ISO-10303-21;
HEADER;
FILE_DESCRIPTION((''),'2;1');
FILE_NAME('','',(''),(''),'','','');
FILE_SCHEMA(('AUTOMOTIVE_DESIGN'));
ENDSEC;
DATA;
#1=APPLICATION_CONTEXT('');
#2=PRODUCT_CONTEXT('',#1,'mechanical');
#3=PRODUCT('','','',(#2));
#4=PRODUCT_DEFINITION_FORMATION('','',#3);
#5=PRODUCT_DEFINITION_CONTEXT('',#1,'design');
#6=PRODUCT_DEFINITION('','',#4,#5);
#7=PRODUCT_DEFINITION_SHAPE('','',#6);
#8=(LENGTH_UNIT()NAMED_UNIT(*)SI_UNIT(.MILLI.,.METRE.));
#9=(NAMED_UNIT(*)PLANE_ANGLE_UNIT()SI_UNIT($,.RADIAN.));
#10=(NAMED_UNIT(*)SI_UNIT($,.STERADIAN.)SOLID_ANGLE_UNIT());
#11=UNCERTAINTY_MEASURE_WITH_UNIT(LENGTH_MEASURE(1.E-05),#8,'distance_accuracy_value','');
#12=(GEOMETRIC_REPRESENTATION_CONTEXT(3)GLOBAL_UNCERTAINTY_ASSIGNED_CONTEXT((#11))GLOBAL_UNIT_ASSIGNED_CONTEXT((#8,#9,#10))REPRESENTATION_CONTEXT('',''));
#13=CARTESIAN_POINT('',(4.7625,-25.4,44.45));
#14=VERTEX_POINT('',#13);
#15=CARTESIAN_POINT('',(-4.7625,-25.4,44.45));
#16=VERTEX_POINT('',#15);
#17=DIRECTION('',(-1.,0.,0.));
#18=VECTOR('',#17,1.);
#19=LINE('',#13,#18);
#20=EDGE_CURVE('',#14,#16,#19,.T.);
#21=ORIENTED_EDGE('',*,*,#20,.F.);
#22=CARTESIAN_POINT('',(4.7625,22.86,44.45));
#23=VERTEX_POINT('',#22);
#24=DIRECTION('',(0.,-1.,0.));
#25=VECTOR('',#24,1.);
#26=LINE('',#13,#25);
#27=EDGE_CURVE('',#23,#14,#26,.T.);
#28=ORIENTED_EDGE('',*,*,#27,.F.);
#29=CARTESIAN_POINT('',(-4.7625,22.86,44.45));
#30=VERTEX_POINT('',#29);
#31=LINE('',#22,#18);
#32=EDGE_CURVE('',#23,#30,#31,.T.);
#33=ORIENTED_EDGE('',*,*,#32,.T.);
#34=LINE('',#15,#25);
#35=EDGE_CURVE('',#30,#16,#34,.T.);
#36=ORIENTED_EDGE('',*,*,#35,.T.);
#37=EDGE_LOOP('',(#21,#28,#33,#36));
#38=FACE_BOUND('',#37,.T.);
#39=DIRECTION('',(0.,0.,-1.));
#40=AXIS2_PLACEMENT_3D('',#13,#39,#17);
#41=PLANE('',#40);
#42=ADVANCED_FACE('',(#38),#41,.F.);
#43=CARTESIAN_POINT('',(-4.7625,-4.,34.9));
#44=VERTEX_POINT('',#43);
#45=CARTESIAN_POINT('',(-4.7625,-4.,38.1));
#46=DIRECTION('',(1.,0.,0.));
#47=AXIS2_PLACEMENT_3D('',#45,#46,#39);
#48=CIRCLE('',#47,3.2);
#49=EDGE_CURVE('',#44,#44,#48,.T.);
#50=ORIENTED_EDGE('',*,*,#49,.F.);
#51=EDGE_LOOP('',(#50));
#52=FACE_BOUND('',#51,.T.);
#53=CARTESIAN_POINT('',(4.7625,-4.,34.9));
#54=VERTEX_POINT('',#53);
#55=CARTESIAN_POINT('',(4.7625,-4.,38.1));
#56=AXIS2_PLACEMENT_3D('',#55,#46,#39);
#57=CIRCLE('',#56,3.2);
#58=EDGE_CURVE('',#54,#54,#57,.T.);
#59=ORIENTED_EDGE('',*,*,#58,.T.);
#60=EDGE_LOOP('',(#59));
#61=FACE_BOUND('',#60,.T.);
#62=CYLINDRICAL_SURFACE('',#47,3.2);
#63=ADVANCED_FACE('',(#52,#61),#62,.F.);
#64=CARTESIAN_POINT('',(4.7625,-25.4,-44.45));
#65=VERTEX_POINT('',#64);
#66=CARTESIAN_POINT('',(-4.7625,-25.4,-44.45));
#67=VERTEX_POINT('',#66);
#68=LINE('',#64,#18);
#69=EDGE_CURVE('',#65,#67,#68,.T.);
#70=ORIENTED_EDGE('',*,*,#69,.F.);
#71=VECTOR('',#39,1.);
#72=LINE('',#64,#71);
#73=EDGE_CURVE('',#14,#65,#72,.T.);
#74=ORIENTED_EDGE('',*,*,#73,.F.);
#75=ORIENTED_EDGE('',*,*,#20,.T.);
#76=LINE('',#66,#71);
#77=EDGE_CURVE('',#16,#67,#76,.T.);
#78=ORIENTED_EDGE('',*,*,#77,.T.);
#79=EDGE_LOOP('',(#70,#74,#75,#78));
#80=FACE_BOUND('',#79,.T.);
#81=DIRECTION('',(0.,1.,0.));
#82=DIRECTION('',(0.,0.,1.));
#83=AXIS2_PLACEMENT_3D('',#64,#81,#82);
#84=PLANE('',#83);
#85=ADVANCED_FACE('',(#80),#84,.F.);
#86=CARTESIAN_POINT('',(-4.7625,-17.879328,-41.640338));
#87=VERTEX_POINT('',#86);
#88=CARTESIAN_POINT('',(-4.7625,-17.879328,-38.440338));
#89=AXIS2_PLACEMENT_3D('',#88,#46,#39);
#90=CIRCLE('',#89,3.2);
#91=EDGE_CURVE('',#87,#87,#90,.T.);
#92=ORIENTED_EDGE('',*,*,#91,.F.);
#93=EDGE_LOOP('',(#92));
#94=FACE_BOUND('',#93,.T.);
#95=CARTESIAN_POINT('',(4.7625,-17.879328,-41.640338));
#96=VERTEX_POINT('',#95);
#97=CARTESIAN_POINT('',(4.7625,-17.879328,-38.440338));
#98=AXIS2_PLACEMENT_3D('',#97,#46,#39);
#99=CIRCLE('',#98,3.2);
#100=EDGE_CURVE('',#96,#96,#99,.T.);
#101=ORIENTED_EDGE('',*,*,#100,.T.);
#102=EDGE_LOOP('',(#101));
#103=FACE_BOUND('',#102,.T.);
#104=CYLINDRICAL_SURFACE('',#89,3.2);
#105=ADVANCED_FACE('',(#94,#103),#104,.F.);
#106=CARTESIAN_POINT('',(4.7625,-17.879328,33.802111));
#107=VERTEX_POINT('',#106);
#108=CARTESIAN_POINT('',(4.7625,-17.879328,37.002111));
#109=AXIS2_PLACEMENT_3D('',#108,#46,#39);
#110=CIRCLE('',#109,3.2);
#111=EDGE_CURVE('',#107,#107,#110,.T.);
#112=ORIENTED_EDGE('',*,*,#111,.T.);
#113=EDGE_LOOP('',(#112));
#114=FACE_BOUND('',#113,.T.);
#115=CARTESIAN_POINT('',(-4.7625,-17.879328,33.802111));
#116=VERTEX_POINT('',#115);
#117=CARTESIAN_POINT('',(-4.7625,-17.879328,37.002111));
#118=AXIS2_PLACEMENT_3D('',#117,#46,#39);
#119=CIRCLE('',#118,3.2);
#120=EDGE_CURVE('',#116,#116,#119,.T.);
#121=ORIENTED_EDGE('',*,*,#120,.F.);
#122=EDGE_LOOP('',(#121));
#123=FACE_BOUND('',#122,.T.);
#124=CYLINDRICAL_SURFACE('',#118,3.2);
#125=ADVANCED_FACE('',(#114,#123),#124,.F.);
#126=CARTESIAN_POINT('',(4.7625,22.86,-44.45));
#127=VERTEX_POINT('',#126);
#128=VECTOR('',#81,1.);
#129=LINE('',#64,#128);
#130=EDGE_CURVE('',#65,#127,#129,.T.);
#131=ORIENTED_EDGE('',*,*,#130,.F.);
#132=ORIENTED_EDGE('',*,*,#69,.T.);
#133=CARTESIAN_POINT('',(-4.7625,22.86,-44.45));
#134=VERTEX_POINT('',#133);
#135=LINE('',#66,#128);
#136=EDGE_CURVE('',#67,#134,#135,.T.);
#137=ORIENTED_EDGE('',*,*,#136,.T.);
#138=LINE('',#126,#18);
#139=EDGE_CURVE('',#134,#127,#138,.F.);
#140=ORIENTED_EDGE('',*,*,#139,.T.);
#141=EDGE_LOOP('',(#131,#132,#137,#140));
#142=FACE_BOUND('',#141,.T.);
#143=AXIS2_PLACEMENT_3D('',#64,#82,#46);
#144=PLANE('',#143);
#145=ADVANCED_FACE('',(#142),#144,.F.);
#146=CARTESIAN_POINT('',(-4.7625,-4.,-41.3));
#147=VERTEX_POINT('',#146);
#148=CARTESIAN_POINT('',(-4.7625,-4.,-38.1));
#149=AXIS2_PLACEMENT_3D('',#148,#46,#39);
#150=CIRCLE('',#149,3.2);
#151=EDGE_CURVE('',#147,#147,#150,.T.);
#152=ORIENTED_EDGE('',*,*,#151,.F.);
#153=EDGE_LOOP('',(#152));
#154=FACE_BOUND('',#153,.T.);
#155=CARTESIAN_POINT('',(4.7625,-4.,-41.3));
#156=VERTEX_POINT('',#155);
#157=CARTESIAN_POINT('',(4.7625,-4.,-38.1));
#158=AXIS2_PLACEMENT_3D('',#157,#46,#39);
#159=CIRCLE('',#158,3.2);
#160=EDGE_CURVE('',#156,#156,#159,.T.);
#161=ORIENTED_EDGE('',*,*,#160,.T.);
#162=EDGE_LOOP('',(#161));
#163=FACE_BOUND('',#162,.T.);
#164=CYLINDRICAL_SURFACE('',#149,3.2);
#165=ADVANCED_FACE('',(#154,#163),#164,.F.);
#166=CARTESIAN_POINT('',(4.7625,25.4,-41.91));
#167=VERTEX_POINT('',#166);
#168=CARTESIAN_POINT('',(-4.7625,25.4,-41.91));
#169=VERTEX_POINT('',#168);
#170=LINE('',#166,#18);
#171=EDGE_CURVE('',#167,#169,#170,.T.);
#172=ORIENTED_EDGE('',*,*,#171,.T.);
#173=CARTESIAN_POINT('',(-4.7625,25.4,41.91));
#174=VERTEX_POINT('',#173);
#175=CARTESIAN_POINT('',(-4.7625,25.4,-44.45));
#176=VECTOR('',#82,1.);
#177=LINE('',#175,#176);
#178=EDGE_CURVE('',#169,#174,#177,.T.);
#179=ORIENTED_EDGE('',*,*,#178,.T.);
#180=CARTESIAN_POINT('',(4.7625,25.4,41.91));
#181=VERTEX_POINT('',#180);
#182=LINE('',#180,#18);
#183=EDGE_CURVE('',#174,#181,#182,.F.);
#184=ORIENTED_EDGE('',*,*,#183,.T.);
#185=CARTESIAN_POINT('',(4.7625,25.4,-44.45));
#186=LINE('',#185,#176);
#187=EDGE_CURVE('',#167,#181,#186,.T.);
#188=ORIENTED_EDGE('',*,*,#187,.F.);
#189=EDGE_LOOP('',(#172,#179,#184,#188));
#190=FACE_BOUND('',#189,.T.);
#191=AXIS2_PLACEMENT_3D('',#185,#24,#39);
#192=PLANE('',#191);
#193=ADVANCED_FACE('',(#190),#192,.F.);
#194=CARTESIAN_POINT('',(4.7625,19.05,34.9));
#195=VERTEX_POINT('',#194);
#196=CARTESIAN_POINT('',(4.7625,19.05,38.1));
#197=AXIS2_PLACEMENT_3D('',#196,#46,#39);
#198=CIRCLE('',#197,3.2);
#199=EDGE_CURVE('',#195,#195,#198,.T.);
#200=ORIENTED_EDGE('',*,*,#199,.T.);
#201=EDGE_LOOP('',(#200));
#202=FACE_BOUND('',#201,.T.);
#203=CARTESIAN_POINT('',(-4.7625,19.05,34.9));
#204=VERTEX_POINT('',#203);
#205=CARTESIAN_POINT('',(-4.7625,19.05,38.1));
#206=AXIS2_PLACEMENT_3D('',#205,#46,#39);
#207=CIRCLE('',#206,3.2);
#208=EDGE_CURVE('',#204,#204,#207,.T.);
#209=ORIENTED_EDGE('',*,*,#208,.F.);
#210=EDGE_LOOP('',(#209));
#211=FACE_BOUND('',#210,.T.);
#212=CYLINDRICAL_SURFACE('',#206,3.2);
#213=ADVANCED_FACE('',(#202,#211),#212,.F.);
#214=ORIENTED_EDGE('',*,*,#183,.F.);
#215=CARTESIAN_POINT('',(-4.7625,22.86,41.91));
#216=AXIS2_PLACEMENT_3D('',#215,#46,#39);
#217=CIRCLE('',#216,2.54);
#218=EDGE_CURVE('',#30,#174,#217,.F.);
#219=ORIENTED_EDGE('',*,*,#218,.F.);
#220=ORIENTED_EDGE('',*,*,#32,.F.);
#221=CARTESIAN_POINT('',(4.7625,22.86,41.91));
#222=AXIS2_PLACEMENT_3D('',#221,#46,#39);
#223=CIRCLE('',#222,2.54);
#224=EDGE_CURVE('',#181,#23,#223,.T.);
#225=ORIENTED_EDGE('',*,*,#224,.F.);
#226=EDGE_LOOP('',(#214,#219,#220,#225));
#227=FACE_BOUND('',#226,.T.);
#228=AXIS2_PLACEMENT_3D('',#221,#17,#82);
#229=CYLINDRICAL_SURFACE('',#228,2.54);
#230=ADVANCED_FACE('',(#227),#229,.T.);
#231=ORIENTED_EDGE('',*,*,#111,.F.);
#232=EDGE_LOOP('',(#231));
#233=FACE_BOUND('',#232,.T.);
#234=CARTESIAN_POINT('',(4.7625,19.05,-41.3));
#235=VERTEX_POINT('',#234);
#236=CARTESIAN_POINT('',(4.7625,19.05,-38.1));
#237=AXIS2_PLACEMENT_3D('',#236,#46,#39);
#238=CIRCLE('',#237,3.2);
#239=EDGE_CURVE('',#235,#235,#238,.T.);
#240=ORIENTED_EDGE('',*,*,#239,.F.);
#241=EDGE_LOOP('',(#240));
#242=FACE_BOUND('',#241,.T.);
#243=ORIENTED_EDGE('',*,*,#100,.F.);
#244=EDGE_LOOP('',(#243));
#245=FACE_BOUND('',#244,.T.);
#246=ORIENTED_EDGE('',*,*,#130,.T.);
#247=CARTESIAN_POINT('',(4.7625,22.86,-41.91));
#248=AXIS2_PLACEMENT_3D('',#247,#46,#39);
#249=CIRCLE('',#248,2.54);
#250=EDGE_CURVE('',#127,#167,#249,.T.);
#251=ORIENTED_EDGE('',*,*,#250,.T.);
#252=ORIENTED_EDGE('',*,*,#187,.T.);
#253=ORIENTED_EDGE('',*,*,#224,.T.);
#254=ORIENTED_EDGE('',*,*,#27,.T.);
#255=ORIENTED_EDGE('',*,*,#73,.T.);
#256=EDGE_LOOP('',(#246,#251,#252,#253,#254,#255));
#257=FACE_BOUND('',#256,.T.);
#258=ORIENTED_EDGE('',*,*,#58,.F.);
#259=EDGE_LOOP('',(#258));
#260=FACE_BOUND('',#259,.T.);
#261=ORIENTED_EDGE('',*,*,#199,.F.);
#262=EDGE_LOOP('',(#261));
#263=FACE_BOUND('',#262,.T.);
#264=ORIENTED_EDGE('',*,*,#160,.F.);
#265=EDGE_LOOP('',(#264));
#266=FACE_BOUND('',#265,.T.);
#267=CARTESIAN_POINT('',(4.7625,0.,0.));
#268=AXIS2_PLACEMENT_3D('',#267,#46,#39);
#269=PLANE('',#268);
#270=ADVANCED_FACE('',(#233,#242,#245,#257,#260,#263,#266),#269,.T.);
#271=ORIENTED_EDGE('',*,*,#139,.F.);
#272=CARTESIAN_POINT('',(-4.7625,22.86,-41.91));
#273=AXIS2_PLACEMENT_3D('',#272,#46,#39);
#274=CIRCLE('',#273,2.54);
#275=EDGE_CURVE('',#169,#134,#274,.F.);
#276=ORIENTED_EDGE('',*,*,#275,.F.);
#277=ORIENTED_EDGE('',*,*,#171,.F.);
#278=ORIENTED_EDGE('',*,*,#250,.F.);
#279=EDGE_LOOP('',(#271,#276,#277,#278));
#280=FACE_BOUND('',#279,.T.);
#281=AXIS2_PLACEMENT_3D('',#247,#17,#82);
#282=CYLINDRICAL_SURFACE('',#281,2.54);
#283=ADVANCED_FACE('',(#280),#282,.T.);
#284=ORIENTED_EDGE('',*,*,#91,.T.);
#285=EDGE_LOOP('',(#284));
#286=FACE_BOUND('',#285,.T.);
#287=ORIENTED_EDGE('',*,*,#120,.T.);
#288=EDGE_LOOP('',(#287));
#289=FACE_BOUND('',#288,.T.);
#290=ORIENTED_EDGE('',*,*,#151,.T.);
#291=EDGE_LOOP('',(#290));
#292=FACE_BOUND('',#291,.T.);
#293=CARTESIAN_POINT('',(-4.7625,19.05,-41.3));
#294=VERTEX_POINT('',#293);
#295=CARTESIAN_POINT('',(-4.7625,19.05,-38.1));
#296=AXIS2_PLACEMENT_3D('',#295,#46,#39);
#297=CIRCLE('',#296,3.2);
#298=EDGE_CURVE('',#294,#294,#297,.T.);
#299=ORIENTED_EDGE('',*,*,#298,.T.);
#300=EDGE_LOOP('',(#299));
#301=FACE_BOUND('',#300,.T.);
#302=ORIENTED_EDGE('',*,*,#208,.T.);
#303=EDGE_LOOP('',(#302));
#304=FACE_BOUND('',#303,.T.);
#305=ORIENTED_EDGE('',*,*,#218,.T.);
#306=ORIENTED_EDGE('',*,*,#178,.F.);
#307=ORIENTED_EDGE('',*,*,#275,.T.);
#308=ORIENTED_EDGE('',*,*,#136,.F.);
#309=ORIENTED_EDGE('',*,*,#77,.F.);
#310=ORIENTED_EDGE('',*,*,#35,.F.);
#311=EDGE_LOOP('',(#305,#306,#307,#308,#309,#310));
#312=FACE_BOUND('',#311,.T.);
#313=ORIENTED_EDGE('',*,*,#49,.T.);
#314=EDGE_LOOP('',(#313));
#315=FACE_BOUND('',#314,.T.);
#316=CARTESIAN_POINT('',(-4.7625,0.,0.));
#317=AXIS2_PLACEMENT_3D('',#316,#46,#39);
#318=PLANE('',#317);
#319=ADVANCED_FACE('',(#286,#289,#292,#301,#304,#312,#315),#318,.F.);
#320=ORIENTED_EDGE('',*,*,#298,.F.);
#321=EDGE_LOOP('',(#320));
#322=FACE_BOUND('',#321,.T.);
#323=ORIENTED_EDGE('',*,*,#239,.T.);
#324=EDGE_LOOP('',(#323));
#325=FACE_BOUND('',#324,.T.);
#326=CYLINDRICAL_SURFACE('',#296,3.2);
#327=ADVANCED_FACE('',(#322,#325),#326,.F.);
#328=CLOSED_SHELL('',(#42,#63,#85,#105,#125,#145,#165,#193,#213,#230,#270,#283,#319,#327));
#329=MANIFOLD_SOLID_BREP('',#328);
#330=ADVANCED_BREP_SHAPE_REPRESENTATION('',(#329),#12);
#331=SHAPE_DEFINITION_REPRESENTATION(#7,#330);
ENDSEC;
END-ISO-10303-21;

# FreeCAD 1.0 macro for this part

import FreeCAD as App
import Part
import Sketcher
from FreeCAD import Vector
Q = App.Units.Quantity


def edges_at(feature, points):
    """Names of the edges that pass closest to the given points."""
    edges = feature.Shape.Edges
    near = lambda p: min(range(len(edges)), key=lambda i: edges[i].distToShape(Part.Vertex(*p))[0])
    return sorted({f"Edge{near(p) + 1}" for p in points})

doc = App.newDocument("Part")
body = doc.addObject("PartDesign::Body", "Body")

# Sketch on YZ plane
sketch1 = doc.addObject("Sketcher::SketchObject", "Sketch")
body.addObject(sketch1)
sketch1.AttachmentSupport = (doc.YZ_Plane, [""])
sketch1.MapMode = "FlatFace"
sketch1.addGeometry(Part.LineSegment(Vector(25.4, 44.45, 0), Vector(-25.4, 44.45, 0)), False)
sketch1.addGeometry(Part.LineSegment(Vector(-25.4, 44.45, 0), Vector(-25.4, -44.45, 0)), False)
sketch1.addGeometry(Part.LineSegment(Vector(-25.4, -44.45, 0), Vector(25.4, -44.45, 0)), False)
sketch1.addGeometry(Part.LineSegment(Vector(25.4, -44.45, 0), Vector(25.4, 44.45, 0)), False)
sketch1.addConstraint(Sketcher.Constraint("Coincident", 0, 2, 1, 1))
sketch1.addConstraint(Sketcher.Constraint("Coincident", 1, 2, 2, 1))
sketch1.addConstraint(Sketcher.Constraint("Coincident", 2, 2, 3, 1))
sketch1.addConstraint(Sketcher.Constraint("Coincident", 3, 2, 0, 1))
sketch1.addConstraint(Sketcher.Constraint("Horizontal", 0))
sketch1.addConstraint(Sketcher.Constraint("Vertical", 1))
sketch1.addConstraint(Sketcher.Constraint("Horizontal", 2))
sketch1.addConstraint(Sketcher.Constraint("Vertical", 3))
sketch1.addConstraint(Sketcher.Constraint("Symmetric", 0, 2, 2, 2, -1, 1))
sketch1.addConstraint(Sketcher.Constraint("DistanceX", 0, 2, 0, 1, Q("2 in")))
sketch1.addConstraint(Sketcher.Constraint("DistanceY", 1, 2, 1, 1, Q("3.5 in")))
pad1 = doc.addObject("PartDesign::Pad", "Pad")
body.addObject(pad1)
pad1.Profile = sketch1
pad1.Length = Q("0.375 in")
pad1.Midplane = True

# Sketch on YZ plane
sketch2 = doc.addObject("Sketcher::SketchObject", "Sketch001")
body.addObject(sketch2)
sketch2.AttachmentSupport = (doc.YZ_Plane, [""])
sketch2.MapMode = "FlatFace"
sketch2.AttachmentOffset = App.Placement(Vector(0, 0, 0.1875 * 25.4), App.Rotation())
sketch2.addGeometry(Part.Circle(Vector(19.05, 38.1, 0), Vector(0, 0, 1), 3.2), False)
sketch2.addGeometry(Part.Circle(Vector(19.05, -38.1, 0), Vector(0, 0, 1), 3.2), False)
sketch2.addGeometry(Part.Circle(Vector(-4, 38.1, 0), Vector(0, 0, 1), 3.2), False)
sketch2.addGeometry(Part.Circle(Vector(-4, -38.1, 0), Vector(0, 0, 1), 3.2), False)
sketch2.addConstraint(Sketcher.Constraint("Equal", 0, 1))
sketch2.addConstraint(Sketcher.Constraint("Equal", 1, 2))
sketch2.addConstraint(Sketcher.Constraint("Equal", 2, 3))
sketch2.addConstraint(Sketcher.Constraint("Symmetric", 0, 3, 1, 3, -1))
sketch2.addConstraint(Sketcher.Constraint("Symmetric", 2, 3, 3, 3, -1))
sketch2.addConstraint(Sketcher.Constraint("Horizontal", 0, 3, 2, 3))
sketch2.addConstraint(Sketcher.Constraint("DistanceY", 1, 3, 0, 3, Q("3 in")))
sketch2.addConstraint(Sketcher.Constraint("Diameter", 0, Q("6.4 mm")))
sketch2.addConstraint(Sketcher.Constraint("DistanceX", -1, 1, 0, 3, Q("0.75 in")))
sketch2.addConstraint(Sketcher.Constraint("DistanceX", 2, 3, -1, 1, Q("4 mm")))
pocket1 = doc.addObject("PartDesign::Pocket", "Pocket")
body.addObject(pocket1)
pocket1.Profile = sketch2
pocket1.Type = "ThroughAll"
doc.recompute()

fillet = doc.addObject("PartDesign::Fillet", "Fillet")
body.addObject(fillet)
fillet.Base = (pocket1, edges_at(pocket1, [(0, 25.4, 44.45)]))
fillet.Radius = Q("0.1 in")
doc.recompute()

fillet2 = doc.addObject("PartDesign::Fillet", "Fillet001")
body.addObject(fillet2)
fillet2.Base = (fillet, edges_at(fillet, [(0, 25.4, -44.45)]))
fillet2.Radius = Q("0.1 in")

# Sketch on YZ plane
sketch3 = doc.addObject("Sketcher::SketchObject", "Sketch002")
body.addObject(sketch3)
sketch3.AttachmentSupport = (doc.YZ_Plane, [""])
sketch3.MapMode = "FlatFace"
sketch3.AttachmentOffset = App.Placement(Vector(0, 0, 0.1875 * 25.4), App.Rotation())
sketch3.addGeometry(Part.Circle(Vector(-17.879328, 37.002111, 0), Vector(0, 0, 1), 3.2), False)
sketch3.addGeometry(Part.Circle(Vector(-17.879328, -38.440338, 0), Vector(0, 0, 1), 3.2), False)
sketch3.addConstraint(Sketcher.Constraint("Equal", 0, 1))
sketch3.addConstraint(Sketcher.Constraint("Vertical", 0, 3, 1, 3))
sketch3.addConstraint(Sketcher.Constraint("Diameter", 0, Q("6.4 mm")))
sketch3.addConstraint(Sketcher.Constraint("DistanceY", -1, 1, 0, 3, Q("37.002111 mm")))
sketch3.addConstraint(Sketcher.Constraint("DistanceY", 1, 3, -1, 1, Q("38.440338 mm")))
sketch3.addConstraint(Sketcher.Constraint("DistanceX", 0, 3, -1, 1, Q("17.879328 mm")))
pocket2 = doc.addObject("PartDesign::Pocket", "Pocket001")
body.addObject(pocket2)
pocket2.Profile = sketch3
pocket2.Type = "ThroughAll"

doc.recompute()
